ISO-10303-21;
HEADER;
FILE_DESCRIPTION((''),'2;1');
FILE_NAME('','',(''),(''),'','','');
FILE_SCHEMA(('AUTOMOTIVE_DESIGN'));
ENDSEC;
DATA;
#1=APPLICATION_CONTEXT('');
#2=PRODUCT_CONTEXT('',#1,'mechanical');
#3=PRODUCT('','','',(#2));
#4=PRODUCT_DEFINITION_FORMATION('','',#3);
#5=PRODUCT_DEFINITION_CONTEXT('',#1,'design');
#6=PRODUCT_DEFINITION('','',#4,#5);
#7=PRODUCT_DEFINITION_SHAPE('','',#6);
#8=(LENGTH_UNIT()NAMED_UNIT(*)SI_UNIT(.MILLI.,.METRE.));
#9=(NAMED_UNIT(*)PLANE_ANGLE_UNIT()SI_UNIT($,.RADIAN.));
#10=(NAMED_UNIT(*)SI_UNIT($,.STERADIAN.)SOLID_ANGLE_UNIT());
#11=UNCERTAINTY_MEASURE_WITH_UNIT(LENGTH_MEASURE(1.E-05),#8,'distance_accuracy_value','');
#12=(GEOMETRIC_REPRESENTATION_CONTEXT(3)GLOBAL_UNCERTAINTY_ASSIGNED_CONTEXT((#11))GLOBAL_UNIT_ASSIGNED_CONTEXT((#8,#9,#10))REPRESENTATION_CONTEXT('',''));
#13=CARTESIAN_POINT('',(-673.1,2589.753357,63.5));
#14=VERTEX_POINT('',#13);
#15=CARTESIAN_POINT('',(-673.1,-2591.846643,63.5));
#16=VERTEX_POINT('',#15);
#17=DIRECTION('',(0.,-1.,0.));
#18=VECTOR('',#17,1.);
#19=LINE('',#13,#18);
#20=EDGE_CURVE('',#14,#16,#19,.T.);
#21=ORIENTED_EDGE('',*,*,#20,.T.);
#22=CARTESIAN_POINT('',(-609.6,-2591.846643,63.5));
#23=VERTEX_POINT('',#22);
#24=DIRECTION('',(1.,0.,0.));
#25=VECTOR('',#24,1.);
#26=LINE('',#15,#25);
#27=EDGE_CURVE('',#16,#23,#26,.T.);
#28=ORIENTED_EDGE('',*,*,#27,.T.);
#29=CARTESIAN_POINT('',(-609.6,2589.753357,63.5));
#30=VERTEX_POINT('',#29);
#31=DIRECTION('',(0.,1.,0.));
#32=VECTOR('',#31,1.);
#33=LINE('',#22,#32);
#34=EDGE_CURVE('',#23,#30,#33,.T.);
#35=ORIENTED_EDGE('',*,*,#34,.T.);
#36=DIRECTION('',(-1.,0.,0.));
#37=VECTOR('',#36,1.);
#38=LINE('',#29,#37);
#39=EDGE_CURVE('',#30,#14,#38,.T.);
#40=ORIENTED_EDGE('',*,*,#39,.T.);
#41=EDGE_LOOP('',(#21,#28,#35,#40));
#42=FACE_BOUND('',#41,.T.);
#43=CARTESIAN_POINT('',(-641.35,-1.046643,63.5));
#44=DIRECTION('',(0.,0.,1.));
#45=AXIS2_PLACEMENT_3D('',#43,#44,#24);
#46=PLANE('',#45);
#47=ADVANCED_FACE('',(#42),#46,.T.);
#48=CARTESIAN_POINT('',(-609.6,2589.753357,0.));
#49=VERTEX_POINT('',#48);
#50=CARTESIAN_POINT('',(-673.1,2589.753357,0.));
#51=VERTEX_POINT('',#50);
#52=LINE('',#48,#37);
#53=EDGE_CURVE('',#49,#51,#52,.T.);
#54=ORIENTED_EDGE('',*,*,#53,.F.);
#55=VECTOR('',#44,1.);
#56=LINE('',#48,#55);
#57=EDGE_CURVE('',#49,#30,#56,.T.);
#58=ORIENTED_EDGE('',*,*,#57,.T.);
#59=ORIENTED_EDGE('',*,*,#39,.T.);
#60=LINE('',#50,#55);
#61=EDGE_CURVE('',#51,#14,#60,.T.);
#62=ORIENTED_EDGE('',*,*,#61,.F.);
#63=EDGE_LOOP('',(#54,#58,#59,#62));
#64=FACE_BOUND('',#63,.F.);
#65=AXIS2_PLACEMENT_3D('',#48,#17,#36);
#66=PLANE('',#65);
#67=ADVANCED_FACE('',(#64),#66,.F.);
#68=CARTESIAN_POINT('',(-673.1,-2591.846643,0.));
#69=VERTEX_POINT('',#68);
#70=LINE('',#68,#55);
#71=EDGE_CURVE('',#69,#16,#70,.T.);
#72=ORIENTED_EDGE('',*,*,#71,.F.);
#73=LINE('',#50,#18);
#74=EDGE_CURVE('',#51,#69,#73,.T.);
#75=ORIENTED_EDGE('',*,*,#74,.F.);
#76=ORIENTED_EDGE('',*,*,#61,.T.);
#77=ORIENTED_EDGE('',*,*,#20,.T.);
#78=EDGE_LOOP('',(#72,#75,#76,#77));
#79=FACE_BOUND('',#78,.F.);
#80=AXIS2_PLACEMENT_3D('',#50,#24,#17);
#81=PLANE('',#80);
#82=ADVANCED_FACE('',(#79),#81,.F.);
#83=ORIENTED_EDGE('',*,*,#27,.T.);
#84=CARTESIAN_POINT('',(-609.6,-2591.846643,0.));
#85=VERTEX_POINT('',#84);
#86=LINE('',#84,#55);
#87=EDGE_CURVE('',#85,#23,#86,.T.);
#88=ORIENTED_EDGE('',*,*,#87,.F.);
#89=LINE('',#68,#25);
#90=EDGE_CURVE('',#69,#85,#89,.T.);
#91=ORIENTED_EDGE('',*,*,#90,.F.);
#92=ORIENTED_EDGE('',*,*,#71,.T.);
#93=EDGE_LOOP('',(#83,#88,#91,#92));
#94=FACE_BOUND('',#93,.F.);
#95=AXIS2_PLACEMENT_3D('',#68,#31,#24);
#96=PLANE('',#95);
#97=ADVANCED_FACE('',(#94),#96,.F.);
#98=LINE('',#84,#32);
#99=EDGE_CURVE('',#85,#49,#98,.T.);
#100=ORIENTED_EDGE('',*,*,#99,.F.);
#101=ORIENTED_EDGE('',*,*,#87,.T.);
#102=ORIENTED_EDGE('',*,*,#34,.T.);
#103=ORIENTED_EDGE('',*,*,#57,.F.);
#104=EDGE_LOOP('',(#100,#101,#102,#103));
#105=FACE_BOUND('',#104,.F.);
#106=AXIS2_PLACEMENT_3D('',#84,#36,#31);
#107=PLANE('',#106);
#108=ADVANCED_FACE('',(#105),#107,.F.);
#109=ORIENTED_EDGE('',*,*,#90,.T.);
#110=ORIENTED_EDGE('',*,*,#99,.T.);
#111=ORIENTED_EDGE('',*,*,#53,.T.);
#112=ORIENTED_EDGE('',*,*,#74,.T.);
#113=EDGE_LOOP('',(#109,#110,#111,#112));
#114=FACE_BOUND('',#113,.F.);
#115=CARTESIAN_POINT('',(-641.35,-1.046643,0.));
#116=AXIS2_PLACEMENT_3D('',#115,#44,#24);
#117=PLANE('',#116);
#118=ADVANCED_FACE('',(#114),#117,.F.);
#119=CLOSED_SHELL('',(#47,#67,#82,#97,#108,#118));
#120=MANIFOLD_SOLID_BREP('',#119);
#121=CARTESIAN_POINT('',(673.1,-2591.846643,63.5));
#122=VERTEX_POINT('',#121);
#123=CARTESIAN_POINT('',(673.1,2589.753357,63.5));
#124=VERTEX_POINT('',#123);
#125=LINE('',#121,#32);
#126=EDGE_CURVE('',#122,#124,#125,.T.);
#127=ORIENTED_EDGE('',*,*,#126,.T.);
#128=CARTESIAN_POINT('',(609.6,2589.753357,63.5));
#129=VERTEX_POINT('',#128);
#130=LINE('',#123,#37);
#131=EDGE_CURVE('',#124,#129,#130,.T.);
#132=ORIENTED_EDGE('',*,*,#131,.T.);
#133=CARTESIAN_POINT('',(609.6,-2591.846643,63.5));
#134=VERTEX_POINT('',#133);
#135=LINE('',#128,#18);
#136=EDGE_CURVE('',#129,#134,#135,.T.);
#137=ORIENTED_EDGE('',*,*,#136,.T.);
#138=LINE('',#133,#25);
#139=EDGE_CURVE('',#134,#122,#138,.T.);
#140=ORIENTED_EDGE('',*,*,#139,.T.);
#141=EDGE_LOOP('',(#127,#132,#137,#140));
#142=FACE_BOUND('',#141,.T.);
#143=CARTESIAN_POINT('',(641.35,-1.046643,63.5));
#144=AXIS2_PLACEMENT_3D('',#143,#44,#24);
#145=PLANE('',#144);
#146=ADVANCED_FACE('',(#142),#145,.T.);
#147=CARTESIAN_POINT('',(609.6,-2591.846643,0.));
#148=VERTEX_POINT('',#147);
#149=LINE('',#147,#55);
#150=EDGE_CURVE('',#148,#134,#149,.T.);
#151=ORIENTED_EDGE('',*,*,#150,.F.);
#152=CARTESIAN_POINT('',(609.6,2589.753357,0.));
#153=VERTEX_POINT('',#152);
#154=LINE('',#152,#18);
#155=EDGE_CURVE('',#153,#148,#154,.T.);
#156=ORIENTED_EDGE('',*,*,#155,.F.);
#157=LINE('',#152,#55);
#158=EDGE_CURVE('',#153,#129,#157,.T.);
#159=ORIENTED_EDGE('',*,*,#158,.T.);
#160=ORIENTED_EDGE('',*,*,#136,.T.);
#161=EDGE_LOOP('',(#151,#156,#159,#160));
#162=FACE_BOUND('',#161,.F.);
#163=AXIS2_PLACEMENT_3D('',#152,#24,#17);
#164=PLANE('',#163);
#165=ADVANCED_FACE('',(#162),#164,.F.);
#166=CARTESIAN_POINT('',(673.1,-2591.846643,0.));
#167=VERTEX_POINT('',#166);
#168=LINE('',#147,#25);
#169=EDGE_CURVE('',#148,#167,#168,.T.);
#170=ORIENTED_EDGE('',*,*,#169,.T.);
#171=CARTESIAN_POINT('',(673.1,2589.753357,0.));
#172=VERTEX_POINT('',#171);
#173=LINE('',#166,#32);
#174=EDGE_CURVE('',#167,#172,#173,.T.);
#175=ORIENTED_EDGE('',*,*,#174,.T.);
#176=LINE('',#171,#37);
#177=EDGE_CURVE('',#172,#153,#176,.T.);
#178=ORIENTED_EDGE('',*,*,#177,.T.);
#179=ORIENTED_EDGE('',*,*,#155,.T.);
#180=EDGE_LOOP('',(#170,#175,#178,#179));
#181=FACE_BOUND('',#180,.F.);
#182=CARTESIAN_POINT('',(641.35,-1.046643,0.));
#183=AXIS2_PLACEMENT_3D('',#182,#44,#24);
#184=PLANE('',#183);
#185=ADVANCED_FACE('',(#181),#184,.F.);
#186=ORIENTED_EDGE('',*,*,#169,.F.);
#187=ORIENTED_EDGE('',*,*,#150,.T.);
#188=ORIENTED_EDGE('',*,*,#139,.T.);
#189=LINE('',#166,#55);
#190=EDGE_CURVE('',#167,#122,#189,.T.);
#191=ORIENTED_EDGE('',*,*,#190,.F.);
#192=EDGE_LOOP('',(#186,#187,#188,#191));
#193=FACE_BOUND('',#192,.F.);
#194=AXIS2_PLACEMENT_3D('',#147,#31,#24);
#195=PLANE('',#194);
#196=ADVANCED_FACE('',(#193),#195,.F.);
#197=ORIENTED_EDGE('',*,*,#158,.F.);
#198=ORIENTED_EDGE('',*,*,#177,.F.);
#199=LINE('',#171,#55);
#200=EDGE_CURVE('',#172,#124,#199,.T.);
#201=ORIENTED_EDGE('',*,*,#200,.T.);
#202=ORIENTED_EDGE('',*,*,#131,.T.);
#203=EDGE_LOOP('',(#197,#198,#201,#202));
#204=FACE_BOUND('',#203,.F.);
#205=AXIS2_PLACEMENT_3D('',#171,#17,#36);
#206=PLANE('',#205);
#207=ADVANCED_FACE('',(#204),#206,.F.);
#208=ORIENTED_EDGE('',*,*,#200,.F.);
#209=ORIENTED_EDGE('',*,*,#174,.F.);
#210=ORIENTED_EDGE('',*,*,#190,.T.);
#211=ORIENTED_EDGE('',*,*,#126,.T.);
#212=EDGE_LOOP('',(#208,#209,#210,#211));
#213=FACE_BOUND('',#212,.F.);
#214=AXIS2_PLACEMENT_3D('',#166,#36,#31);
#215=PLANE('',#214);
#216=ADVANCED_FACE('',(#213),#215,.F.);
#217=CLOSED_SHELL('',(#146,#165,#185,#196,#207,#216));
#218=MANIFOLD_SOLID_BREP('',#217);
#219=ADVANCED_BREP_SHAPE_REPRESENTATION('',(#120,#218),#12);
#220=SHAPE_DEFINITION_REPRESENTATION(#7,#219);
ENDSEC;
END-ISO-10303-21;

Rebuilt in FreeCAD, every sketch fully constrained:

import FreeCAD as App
import Part
import Sketcher
Q = App.Units.Quantity


def add_polygon(sketch, points):
    """Adds a closed chain of lines whose ends are joined by coincident constraints."""
    first, n = sketch.GeometryCount, len(points)
    for a, b in zip(points, points[1:] + points[:1]):
        sketch.addGeometry(Part.LineSegment(App.Vector(*a, 0), App.Vector(*b, 0)), False)
    for i in range(n):
        sketch.addConstraint(Sketcher.Constraint("Coincident", first + i, 2, first + (i + 1) % n, 1))

doc = App.newDocument("Part")
params = doc.addObject("Spreadsheet::Sheet", "Params")
for row, (alias, value) in enumerate([
    ("sketch1_height", "204 in"),
    ("sketch1_width", "2.5 in"),
    ("pad1_length", "2.5 in"),
], start=1):
    params.set(f"A{row}", alias)
    params.set(f"B{row}", "=" + value)
    params.setAlias(f"B{row}", alias)

body = doc.addObject("PartDesign::Body", "Body")
body.AllowCompound = True

# Sketch on XY plane
sketch1 = doc.addObject("Sketcher::SketchObject", "Sketch")
body.addObject(sketch1)
sketch1.AttachmentSupport = (doc.XY_Plane, [""])
sketch1.MapMode = "FlatFace"
add_polygon(sketch1, [(673, 2590), (610, 2590), (610, -2592), (673, -2592)])  # lines 0-3
add_polygon(sketch1, [(-610, 2590), (-673, 2590), (-673, -2592), (-610, -2592)])  # lines 4-7
sketch1.addConstraint([
    Sketcher.Constraint("Horizontal", 0),
    Sketcher.Constraint("Vertical", 1),
    Sketcher.Constraint("Horizontal", 2),
    Sketcher.Constraint("Vertical", 3),
    Sketcher.Constraint("Horizontal", 4),
    Sketcher.Constraint("Vertical", 5),
    Sketcher.Constraint("Horizontal", 6),
    Sketcher.Constraint("Vertical", 7),
    Sketcher.Constraint("Symmetric", 3, 2, 4, 2, -2),
    Sketcher.Constraint("Symmetric", 1, 2, 6, 2, -2),
    Sketcher.Constraint("DistanceY", 1, 2, 1, 1, Q("204 in")),
    Sketcher.Constraint("DistanceX", 0, 2, 0, 1, Q("2.5 in")),
    Sketcher.Constraint("DistanceX", -1, 1, 0, 2, Q("24 in")),
    Sketcher.Constraint("DistanceY", -1, 1, 0, 2, Q("2589.753357 mm")),
])
sketch1.setExpression("Constraints[18]", "Params.sketch1_height")
sketch1.setExpression("Constraints[19]", "Params.sketch1_width")
pad1 = doc.addObject("PartDesign::Pad", "Pad")
body.addObject(pad1)
pad1.Profile = sketch1
pad1.setExpression("Length", "Params.pad1_length")

doc.recompute()
